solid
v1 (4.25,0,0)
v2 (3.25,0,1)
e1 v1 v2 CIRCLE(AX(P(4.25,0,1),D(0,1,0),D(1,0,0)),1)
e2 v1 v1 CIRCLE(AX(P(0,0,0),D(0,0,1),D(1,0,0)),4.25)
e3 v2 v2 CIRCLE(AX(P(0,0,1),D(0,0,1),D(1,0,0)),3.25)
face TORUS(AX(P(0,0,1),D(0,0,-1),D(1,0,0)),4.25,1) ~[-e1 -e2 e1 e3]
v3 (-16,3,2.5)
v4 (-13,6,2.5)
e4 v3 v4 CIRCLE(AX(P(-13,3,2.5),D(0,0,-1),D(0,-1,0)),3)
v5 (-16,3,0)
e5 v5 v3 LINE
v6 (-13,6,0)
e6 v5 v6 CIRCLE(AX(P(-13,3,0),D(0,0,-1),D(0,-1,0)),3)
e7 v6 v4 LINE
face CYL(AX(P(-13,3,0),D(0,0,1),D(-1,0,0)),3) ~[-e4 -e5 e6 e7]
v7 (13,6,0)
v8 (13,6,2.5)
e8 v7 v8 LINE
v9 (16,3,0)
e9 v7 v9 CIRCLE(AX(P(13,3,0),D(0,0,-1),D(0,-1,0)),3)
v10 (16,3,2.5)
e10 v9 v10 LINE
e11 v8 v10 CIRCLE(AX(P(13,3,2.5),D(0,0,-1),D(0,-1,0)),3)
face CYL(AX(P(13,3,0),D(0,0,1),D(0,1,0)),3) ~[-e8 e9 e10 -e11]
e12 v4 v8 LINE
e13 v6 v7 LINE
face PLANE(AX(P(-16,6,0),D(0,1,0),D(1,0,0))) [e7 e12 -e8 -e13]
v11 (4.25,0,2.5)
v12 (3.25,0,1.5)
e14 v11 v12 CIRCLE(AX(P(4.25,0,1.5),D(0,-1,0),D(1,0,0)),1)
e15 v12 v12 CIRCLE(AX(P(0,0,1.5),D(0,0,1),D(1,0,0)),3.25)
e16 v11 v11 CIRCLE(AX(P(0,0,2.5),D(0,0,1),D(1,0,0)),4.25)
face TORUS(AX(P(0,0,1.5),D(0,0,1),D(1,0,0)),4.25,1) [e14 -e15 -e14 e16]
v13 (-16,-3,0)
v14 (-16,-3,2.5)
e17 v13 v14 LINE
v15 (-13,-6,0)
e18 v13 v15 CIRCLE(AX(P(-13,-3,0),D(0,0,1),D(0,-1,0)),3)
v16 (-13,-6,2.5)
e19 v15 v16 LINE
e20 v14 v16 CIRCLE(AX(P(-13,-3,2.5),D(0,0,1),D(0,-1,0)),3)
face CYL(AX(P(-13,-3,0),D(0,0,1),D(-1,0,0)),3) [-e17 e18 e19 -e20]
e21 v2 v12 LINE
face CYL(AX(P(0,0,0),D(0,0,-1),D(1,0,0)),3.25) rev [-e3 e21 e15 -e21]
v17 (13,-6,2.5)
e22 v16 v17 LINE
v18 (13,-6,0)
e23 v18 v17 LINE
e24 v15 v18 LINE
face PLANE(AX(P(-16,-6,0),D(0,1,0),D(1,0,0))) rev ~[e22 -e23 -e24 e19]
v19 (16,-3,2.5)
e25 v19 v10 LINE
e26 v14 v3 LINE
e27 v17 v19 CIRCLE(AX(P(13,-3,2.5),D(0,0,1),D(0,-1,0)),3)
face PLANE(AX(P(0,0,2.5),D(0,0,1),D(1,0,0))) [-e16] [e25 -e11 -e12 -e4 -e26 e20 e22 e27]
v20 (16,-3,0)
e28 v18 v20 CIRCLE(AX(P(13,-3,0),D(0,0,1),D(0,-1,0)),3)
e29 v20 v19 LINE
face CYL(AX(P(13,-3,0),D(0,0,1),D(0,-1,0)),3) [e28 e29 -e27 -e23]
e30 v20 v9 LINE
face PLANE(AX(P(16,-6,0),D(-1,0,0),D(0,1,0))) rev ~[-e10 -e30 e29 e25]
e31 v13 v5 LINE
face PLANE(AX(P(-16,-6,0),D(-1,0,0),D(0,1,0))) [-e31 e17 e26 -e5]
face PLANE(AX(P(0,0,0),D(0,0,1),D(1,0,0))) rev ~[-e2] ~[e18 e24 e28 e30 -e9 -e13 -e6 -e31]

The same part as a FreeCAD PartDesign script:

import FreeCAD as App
import Part
import Sketcher

V = App.Vector


def edges_at(feature, points):
    """Names of the edges that pass closest to the given points."""
    edges = feature.Shape.Edges
    near = lambda p: min(range(len(edges)), key=lambda i: edges[i].distToShape(Part.Vertex(*p))[0])
    return sorted({f"Edge{near(p) + 1}" for p in points})

doc = App.newDocument("Part")
params = doc.addObject("Spreadsheet::Sheet", "Params")
for row, (alias, value) in enumerate([
    ("sketch1_diameter", "6.5 mm"),
    ("sketch1_width", "32 mm"),
    ("sketch1_height", "12 mm"),
    ("pad1_length", "2.5 mm"),
    ("fillet_radius", "3 mm"),
    ("fillet2_radius", "1 mm"),
], start=1):
    params.set(f"A{row}", alias)
    params.set(f"B{row}", "=" + value)
    params.setAlias(f"B{row}", alias)

body = doc.addObject("PartDesign::Body", "Body")

# Sketch on XY plane
sketch1 = body.newObject("Sketcher::SketchObject", "Sketch")
sketch1.AttachmentSupport = (doc.getObject("XY_Plane"), [""])
sketch1.MapMode = "FlatFace"
sketch1.addGeometry(Part.LineSegment(V(-16, 6, 0), V(-16, -6, 0)), False)
sketch1.addGeometry(Part.LineSegment(V(-16, -6, 0), V(16, -6, 0)), False)
sketch1.addGeometry(Part.LineSegment(V(16, -6, 0), V(16, 6, 0)), False)
sketch1.addGeometry(Part.LineSegment(V(16, 6, 0), V(-16, 6, 0)), False)
sketch1.addGeometry(Part.Circle(V(0, 0, 0), V(0, 0, 1), 3.2), False)
sketch1.addConstraint(Sketcher.Constraint("Coincident", 0, 2, 1, 1))
sketch1.addConstraint(Sketcher.Constraint("Coincident", 1, 2, 2, 1))
sketch1.addConstraint(Sketcher.Constraint("Coincident", 2, 2, 3, 1))
sketch1.addConstraint(Sketcher.Constraint("Coincident", 3, 2, 0, 1))
sketch1.addConstraint(Sketcher.Constraint("Vertical", 0))
sketch1.addConstraint(Sketcher.Constraint("Horizontal", 1))
sketch1.addConstraint(Sketcher.Constraint("Vertical", 2))
sketch1.addConstraint(Sketcher.Constraint("Horizontal", 3))
sketch1.addConstraint(Sketcher.Constraint("Coincident", 4, 3, -1, 1))
sketch1.addConstraint(Sketcher.Constraint("Symmetric", 0, 2, 2, 2, -1, 1))
sketch1.addConstraint(Sketcher.Constraint("Diameter", 4, 6.5))
sketch1.addConstraint(Sketcher.Constraint("DistanceX", 1, 1, 1, 2, 32.0))
sketch1.addConstraint(Sketcher.Constraint("DistanceY", 0, 2, 0, 1, 12.0))
sketch1.setExpression("Constraints[10]", "Params.sketch1_diameter")
sketch1.setExpression("Constraints[11]", "Params.sketch1_width")
sketch1.setExpression("Constraints[12]", "Params.sketch1_height")
pad1 = body.newObject("PartDesign::Pad", "Pad")
pad1.Profile = sketch1
pad1.setExpression("Length", "Params.pad1_length")
doc.recompute()

fillet = body.newObject("PartDesign::Fillet", "Fillet")
fillet.Base = (pad1, edges_at(pad1, [
    (-16, 6, 1.25),
    (-16, -6, 1.25),
    (16, 6, 1.25),
    (16, -6, 1.25),
]))
fillet.setExpression("Radius", "Params.fillet_radius")
doc.recompute()

fillet2 = body.newObject("PartDesign::Fillet", "Fillet001")
fillet2.Base = (fillet, edges_at(fillet, [(-3.25, 0, 2.5), (-3.25, 0, 0)]))
fillet2.setExpression("Radius", "Params.fillet2_radius")

doc.recompute()
